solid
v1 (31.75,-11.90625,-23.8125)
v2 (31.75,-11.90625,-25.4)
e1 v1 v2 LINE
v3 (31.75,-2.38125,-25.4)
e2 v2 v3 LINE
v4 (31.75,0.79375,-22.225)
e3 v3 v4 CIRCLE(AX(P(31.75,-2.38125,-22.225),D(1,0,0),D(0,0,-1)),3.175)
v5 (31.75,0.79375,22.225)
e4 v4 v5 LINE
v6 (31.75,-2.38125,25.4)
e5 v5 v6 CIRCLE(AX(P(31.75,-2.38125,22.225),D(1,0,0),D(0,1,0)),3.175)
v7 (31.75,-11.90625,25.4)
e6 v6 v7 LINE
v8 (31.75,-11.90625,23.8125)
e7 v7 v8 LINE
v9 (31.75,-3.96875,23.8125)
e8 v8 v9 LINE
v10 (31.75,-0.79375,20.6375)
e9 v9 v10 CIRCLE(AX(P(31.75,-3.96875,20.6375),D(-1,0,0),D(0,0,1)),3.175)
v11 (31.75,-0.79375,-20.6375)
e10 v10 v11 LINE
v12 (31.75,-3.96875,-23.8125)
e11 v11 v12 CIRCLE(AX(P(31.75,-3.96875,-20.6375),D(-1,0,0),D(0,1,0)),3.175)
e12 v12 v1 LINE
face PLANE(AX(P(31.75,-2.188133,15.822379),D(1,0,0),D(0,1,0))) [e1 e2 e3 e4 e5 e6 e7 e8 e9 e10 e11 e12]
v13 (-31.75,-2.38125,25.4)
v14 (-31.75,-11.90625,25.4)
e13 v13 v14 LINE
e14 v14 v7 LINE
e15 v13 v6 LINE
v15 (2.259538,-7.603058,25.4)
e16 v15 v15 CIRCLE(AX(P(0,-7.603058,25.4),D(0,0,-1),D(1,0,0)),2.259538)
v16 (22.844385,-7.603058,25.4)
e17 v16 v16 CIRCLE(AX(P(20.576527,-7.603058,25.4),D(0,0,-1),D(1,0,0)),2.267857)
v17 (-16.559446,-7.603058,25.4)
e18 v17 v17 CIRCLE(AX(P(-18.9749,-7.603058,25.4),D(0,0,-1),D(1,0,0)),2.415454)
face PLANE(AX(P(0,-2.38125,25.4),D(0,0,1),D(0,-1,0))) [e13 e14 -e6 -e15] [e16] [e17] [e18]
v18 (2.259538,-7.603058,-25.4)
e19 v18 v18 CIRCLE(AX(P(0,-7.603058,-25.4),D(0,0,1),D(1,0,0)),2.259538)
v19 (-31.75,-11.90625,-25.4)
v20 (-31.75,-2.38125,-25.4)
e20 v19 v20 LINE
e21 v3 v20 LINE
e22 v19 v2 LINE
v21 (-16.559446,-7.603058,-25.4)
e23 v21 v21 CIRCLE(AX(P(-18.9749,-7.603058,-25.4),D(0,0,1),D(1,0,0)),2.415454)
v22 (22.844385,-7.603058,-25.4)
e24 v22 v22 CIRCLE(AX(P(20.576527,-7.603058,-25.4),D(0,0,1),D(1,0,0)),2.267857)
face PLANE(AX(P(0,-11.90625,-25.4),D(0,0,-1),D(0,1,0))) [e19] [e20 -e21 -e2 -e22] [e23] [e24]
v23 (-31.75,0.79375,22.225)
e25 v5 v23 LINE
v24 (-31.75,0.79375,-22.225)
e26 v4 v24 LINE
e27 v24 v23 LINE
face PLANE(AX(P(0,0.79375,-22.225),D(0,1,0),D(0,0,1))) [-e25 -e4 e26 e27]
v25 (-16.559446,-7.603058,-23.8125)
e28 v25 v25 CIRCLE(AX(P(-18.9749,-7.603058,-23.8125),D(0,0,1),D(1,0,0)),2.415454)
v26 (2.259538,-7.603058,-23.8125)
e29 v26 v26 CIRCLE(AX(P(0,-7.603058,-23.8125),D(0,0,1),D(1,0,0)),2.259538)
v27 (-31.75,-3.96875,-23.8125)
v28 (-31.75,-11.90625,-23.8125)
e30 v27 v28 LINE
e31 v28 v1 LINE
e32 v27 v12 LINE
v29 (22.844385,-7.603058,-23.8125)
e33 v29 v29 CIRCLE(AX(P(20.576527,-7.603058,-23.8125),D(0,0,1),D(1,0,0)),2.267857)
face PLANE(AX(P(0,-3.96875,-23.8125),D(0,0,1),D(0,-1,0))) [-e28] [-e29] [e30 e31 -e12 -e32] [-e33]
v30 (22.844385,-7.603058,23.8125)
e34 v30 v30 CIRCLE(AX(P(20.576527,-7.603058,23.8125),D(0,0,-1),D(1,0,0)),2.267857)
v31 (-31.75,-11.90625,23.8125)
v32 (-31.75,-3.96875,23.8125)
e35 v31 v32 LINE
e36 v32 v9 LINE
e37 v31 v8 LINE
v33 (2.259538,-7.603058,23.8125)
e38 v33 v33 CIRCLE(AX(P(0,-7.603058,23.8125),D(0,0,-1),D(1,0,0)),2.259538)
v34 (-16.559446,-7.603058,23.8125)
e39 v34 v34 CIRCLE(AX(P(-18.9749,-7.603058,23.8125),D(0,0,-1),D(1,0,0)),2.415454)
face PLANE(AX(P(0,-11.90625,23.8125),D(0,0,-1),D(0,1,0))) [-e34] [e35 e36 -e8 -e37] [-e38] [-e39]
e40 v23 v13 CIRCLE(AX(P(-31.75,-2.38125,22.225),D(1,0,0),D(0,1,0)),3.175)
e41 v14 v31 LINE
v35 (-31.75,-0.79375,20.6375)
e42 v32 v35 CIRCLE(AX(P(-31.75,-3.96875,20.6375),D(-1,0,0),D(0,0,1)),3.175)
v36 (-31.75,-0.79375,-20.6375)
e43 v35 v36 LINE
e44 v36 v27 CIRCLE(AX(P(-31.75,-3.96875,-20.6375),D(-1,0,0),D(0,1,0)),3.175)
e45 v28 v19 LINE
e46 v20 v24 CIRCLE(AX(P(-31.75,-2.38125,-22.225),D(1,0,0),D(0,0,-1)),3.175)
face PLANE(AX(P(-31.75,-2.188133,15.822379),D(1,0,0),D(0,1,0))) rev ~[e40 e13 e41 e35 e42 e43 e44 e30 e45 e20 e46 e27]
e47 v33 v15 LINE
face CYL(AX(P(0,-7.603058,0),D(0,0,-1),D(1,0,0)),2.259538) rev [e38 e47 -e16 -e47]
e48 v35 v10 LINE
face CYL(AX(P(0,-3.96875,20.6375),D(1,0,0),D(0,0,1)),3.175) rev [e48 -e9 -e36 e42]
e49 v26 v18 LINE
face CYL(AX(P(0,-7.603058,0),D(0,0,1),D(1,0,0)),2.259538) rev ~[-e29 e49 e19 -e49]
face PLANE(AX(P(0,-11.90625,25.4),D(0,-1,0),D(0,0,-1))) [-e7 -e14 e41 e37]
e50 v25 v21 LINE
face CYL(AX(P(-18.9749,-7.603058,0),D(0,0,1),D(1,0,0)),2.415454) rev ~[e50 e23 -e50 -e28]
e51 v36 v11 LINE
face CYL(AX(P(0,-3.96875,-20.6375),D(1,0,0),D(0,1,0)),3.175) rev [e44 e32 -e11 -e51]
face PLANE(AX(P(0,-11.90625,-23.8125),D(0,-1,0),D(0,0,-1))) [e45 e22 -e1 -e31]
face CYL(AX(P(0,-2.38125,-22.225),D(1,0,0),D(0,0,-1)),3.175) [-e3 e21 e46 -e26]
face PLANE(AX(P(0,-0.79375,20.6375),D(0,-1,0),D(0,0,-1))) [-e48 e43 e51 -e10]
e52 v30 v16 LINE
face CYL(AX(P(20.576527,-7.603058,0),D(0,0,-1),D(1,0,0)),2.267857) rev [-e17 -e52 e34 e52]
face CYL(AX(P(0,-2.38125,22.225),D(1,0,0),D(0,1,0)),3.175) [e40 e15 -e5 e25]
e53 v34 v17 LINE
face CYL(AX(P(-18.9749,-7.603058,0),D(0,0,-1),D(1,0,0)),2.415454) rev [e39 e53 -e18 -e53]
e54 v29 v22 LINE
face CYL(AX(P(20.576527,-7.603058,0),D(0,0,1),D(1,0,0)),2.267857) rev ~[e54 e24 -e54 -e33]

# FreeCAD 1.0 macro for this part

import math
import FreeCAD as App
import Part
import Sketcher

V = App.Vector
Q = App.Units.Quantity

doc = App.newDocument("Part")
params = doc.addObject("Spreadsheet::Sheet", "Params")
for row, (alias, value) in enumerate([
    ("sketch1_radius", "0.125 in"),
    ("sketch1_width", "0.375 in"),
    ("sketch1_width2", "0.3125 in"),
    ("sketch1_height", "0.0625 in"),
    ("pad1_length", "2.5 in"),
], start=1):
    params.set(f"A{row}", alias)
    params.set(f"B{row}", "=" + value)
    params.setAlias(f"B{row}", alias)

body = doc.addObject("PartDesign::Body", "Body")

sketch1 = body.newObject("Sketcher::SketchObject", "Sketch")
sketch1.AttachmentSupport = (doc.getObject("YZ_Plane"), [""])
sketch1.MapMode = "FlatFace"
sketch1.addGeometry(Part.ArcOfCircle(Part.Circle(V(-2.38125, 22.225, 0), V(0, 0, 1), 3.175), math.radians(0), math.radians(90)), False)
sketch1.addGeometry(Part.LineSegment(V(-2.38125, 25.4, 0), V(-11.90625, 25.4, 0)), False)
sketch1.addGeometry(Part.LineSegment(V(-11.90625, 25.4, 0), V(-11.90625, 23.8125, 0)), False)
sketch1.addGeometry(Part.LineSegment(V(-11.90625, 23.8125, 0), V(-3.96875, 23.8125, 0)), False)
sketch1.addGeometry(Part.ArcOfCircle(Part.Circle(V(-3.96875, 20.6375, 0), V(0, 0, 1), 3.175), math.radians(0), math.radians(90)), False)
sketch1.addGeometry(Part.LineSegment(V(-0.79375, 20.6375, 0), V(-0.79375, -20.6375, 0)), False)
sketch1.addGeometry(Part.ArcOfCircle(Part.Circle(V(-3.96875, -20.6375, 0), V(0, 0, 1), 3.175), math.radians(-90), math.radians(0)), False)
sketch1.addGeometry(Part.LineSegment(V(-3.96875, -23.8125, 0), V(-11.90625, -23.8125, 0)), False)
sketch1.addGeometry(Part.LineSegment(V(-11.90625, -23.8125, 0), V(-11.90625, -25.4, 0)), False)
sketch1.addGeometry(Part.LineSegment(V(-11.90625, -25.4, 0), V(-2.38125, -25.4, 0)), False)
sketch1.addGeometry(Part.ArcOfCircle(Part.Circle(V(-2.38125, -22.225, 0), V(0, 0, 1), 3.175), math.radians(-90), math.radians(0)), False)
sketch1.addGeometry(Part.LineSegment(V(0.79375, -22.225, 0), V(0.79375, 22.225, 0)), False)
sketch1.addConstraint(Sketcher.Constraint("Tangent", 0, 2, 1, 1))
sketch1.addConstraint(Sketcher.Constraint("Coincident", 1, 2, 2, 1))
sketch1.addConstraint(Sketcher.Constraint("Coincident", 2, 2, 3, 1))
sketch1.addConstraint(Sketcher.Constraint("Tangent", 3, 2, 4, 2))
sketch1.addConstraint(Sketcher.Constraint("Tangent", 4, 1, 5, 1))
sketch1.addConstraint(Sketcher.Constraint("Tangent", 5, 2, 6, 2))
sketch1.addConstraint(Sketcher.Constraint("Tangent", 6, 1, 7, 1))
sketch1.addConstraint(Sketcher.Constraint("Coincident", 7, 2, 8, 1))
sketch1.addConstraint(Sketcher.Constraint("Coincident", 8, 2, 9, 1))
sketch1.addConstraint(Sketcher.Constraint("Tangent", 9, 2, 10, 1))
sketch1.addConstraint(Sketcher.Constraint("Tangent", 10, 2, 11, 1))
sketch1.addConstraint(Sketcher.Constraint("Tangent", 11, 2, 0, 1))
sketch1.addConstraint(Sketcher.Constraint("Horizontal", 1))
sketch1.addConstraint(Sketcher.Constraint("Vertical", 2))
sketch1.addConstraint(Sketcher.Constraint("Horizontal", 3))
sketch1.addConstraint(Sketcher.Constraint("Vertical", 5))
sketch1.addConstraint(Sketcher.Constraint("Horizontal", 7))
sketch1.addConstraint(Sketcher.Constraint("Vertical", 8))
sketch1.addConstraint(Sketcher.Constraint("Horizontal", 9))
sketch1.addConstraint(Sketcher.Constraint("Vertical", 11))
sketch1.addConstraint(Sketcher.Constraint("Equal", 0, 4))
sketch1.addConstraint(Sketcher.Constraint("Equal", 4, 6))
sketch1.addConstraint(Sketcher.Constraint("Equal", 6, 10))
sketch1.addConstraint(Sketcher.Constraint("Symmetric", 2, 2, 7, 2, -1))
sketch1.addConstraint(Sketcher.Constraint("Equal", 2, 8))
sketch1.addConstraint(Sketcher.Constraint("DistanceY", -1, 1, 0, 2, Q("1 in")))
sketch1.addConstraint(Sketcher.Constraint("Radius", 0, Q("0.125 in")))
sketch1.addConstraint(Sketcher.Constraint("DistanceX", 1, 2, 1, 1, Q("0.375 in")))
sketch1.addConstraint(Sketcher.Constraint("DistanceX", 3, 1, 3, 2, Q("0.3125 in")))
sketch1.addConstraint(Sketcher.Constraint("DistanceY", 2, 2, 2, 1, Q("0.0625 in")))
sketch1.addConstraint(Sketcher.Constraint("DistanceX", 0, 3, -1, 1, Q("0.09375 in")))
sketch1.setExpression("Constraints[26]", "Params.sketch1_radius")
sketch1.setExpression("Constraints[27]", "Params.sketch1_width")
sketch1.setExpression("Constraints[28]", "Params.sketch1_width2")
sketch1.setExpression("Constraints[29]", "Params.sketch1_height")
pad1 = body.newObject("PartDesign::Pad", "Pad")
pad1.Profile = sketch1
pad1.setExpression("Length", "Params.pad1_length")
pad1.Midplane = True

sketch2 = body.newObject("Sketcher::SketchObject", "Sketch001")
sketch2.AttachmentSupport = (doc.getObject("XY_Plane"), [""])
sketch2.MapMode = "FlatFace"
sketch2.addGeometry(Part.Circle(V(0, -7.603058, 0), V(0, 0, 1), 2.259538), False)
sketch2.addGeometry(Part.Circle(V(-18.9749, -7.603058, 0), V(0, 0, 1), 2.415454), False)
sketch2.addGeometry(Part.Circle(V(20.576527, -7.603058, 0), V(0, 0, 1), 2.267857), False)
sketch2.addConstraint(Sketcher.Constraint("PointOnObject", 0, 3, -2))
sketch2.addConstraint(Sketcher.Constraint("Horizontal", 0, 3, 1, 3))
sketch2.addConstraint(Sketcher.Constraint("Horizontal", 1, 3, 2, 3))
sketch2.addConstraint(Sketcher.Constraint("Diameter", 1, Q("4.830908 mm")))
sketch2.addConstraint(Sketcher.Constraint("Diameter", 0, Q("4.519076 mm")))
sketch2.addConstraint(Sketcher.Constraint("Diameter", 2, Q("4.535715 mm")))
sketch2.addConstraint(Sketcher.Constraint("DistanceX", 1, 3, -1, 1, Q("18.9749 mm")))
sketch2.addConstraint(Sketcher.Constraint("DistanceY", 0, 3, -1, 1, Q("7.603058 mm")))
sketch2.addConstraint(Sketcher.Constraint("DistanceX", -1, 1, 2, 3, Q("20.576527 mm")))
pocket1 = body.newObject("PartDesign::Pocket", "Pocket")
pocket1.Profile = sketch2
pocket1.Type = "ThroughAll"
pocket1.Midplane = True

doc.recompute()
